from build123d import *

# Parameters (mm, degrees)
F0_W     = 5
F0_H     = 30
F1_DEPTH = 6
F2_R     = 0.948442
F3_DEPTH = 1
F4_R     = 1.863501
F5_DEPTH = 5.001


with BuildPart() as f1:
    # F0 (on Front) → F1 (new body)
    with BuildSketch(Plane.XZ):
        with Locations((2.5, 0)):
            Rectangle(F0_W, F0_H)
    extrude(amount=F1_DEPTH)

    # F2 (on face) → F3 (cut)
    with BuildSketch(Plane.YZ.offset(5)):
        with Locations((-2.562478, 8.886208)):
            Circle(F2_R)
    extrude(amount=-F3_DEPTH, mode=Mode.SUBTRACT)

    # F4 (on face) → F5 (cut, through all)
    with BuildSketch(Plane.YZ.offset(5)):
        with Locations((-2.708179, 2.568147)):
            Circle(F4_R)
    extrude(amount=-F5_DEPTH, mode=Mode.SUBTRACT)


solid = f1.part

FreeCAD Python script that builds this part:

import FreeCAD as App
import Part
import Sketcher

V = App.Vector
Q = App.Units.Quantity


def add_polygon(sketch, points):
    """Adds a closed chain of lines whose ends are joined by coincident constraints."""
    first, n = sketch.GeometryCount, len(points)
    for a, b in zip(points, points[1:] + points[:1]):
        sketch.addGeometry(Part.LineSegment(App.Vector(*a, 0), App.Vector(*b, 0)), False)
    for i in range(n):
        sketch.addConstraint(Sketcher.Constraint("Coincident", first + i, 2, first + (i + 1) % n, 1))

doc = App.newDocument("Part")
body = doc.addObject("PartDesign::Body", "Body")

# Sketch on XZ plane
sketch1 = doc.addObject("Sketcher::SketchObject", "Sketch")
body.addObject(sketch1)
sketch1.AttachmentSupport = (doc.XZ_Plane, [""])
sketch1.MapMode = "FlatFace"
add_polygon(sketch1, [(0, 15), (0, -15), (5, -15), (5, 15)])  # lines 0-3
sketch1.addConstraint([
    Sketcher.Constraint("Vertical", 0),
    Sketcher.Constraint("Horizontal", 1),
    Sketcher.Constraint("Vertical", 2),
    Sketcher.Constraint("Horizontal", 3),
    Sketcher.Constraint("Symmetric", 0, 2, 3, 2, -1, 1),
    Sketcher.Constraint("DistanceX", 1, 1, 1, 2, Q("5 mm")),
    Sketcher.Constraint("DistanceY", 0, 2, 0, 1, Q("30 mm")),
])
pad1 = doc.addObject("PartDesign::Pad", "Pad")
body.addObject(pad1)
pad1.Profile = sketch1
pad1.Length = 6

# Sketch on YZ plane
sketch2 = doc.addObject("Sketcher::SketchObject", "Sketch001")
body.addObject(sketch2)
sketch2.AttachmentSupport = (doc.YZ_Plane, [""])
sketch2.MapMode = "FlatFace"
sketch2.AttachmentOffset = App.Placement(V(0, 0, 5), App.Rotation())
sketch2.addGeometry(Part.Circle(V(-2.6, 8.9, 0), V(0, 0, 1), 0.9), False)
sketch2.addConstraint([
    Sketcher.Constraint("Diameter", 0, Q("1.896884 mm")),
    Sketcher.Constraint("DistanceX", 0, 3, -1, 1, Q("2.562478 mm")),
    Sketcher.Constraint("DistanceY", -1, 1, 0, 3, Q("8.886208 mm")),
])
pocket1 = doc.addObject("PartDesign::Pocket", "Pocket")
body.addObject(pocket1)
pocket1.Profile = sketch2
pocket1.Length = 1

# Sketch on YZ plane
sketch3 = doc.addObject("Sketcher::SketchObject", "Sketch002")
body.addObject(sketch3)
sketch3.AttachmentSupport = (doc.YZ_Plane, [""])
sketch3.MapMode = "FlatFace"
sketch3.AttachmentOffset = App.Placement(V(0, 0, 5), App.Rotation())
sketch3.addGeometry(Part.Circle(V(-2.7, 2.6, 0), V(0, 0, 1), 1.9), False)
sketch3.addConstraint([
    Sketcher.Constraint("Diameter", 0, Q("3.727002 mm")),
    Sketcher.Constraint("DistanceX", 0, 3, -1, 1, Q("2.708179 mm")),
    Sketcher.Constraint("DistanceY", -1, 1, 0, 3, Q("2.568147 mm")),
])
pocket2 = doc.addObject("PartDesign::Pocket", "Pocket001")
body.addObject(pocket2)
pocket2.Profile = sketch3
pocket2.Type = "ThroughAll"

doc.recompute()
